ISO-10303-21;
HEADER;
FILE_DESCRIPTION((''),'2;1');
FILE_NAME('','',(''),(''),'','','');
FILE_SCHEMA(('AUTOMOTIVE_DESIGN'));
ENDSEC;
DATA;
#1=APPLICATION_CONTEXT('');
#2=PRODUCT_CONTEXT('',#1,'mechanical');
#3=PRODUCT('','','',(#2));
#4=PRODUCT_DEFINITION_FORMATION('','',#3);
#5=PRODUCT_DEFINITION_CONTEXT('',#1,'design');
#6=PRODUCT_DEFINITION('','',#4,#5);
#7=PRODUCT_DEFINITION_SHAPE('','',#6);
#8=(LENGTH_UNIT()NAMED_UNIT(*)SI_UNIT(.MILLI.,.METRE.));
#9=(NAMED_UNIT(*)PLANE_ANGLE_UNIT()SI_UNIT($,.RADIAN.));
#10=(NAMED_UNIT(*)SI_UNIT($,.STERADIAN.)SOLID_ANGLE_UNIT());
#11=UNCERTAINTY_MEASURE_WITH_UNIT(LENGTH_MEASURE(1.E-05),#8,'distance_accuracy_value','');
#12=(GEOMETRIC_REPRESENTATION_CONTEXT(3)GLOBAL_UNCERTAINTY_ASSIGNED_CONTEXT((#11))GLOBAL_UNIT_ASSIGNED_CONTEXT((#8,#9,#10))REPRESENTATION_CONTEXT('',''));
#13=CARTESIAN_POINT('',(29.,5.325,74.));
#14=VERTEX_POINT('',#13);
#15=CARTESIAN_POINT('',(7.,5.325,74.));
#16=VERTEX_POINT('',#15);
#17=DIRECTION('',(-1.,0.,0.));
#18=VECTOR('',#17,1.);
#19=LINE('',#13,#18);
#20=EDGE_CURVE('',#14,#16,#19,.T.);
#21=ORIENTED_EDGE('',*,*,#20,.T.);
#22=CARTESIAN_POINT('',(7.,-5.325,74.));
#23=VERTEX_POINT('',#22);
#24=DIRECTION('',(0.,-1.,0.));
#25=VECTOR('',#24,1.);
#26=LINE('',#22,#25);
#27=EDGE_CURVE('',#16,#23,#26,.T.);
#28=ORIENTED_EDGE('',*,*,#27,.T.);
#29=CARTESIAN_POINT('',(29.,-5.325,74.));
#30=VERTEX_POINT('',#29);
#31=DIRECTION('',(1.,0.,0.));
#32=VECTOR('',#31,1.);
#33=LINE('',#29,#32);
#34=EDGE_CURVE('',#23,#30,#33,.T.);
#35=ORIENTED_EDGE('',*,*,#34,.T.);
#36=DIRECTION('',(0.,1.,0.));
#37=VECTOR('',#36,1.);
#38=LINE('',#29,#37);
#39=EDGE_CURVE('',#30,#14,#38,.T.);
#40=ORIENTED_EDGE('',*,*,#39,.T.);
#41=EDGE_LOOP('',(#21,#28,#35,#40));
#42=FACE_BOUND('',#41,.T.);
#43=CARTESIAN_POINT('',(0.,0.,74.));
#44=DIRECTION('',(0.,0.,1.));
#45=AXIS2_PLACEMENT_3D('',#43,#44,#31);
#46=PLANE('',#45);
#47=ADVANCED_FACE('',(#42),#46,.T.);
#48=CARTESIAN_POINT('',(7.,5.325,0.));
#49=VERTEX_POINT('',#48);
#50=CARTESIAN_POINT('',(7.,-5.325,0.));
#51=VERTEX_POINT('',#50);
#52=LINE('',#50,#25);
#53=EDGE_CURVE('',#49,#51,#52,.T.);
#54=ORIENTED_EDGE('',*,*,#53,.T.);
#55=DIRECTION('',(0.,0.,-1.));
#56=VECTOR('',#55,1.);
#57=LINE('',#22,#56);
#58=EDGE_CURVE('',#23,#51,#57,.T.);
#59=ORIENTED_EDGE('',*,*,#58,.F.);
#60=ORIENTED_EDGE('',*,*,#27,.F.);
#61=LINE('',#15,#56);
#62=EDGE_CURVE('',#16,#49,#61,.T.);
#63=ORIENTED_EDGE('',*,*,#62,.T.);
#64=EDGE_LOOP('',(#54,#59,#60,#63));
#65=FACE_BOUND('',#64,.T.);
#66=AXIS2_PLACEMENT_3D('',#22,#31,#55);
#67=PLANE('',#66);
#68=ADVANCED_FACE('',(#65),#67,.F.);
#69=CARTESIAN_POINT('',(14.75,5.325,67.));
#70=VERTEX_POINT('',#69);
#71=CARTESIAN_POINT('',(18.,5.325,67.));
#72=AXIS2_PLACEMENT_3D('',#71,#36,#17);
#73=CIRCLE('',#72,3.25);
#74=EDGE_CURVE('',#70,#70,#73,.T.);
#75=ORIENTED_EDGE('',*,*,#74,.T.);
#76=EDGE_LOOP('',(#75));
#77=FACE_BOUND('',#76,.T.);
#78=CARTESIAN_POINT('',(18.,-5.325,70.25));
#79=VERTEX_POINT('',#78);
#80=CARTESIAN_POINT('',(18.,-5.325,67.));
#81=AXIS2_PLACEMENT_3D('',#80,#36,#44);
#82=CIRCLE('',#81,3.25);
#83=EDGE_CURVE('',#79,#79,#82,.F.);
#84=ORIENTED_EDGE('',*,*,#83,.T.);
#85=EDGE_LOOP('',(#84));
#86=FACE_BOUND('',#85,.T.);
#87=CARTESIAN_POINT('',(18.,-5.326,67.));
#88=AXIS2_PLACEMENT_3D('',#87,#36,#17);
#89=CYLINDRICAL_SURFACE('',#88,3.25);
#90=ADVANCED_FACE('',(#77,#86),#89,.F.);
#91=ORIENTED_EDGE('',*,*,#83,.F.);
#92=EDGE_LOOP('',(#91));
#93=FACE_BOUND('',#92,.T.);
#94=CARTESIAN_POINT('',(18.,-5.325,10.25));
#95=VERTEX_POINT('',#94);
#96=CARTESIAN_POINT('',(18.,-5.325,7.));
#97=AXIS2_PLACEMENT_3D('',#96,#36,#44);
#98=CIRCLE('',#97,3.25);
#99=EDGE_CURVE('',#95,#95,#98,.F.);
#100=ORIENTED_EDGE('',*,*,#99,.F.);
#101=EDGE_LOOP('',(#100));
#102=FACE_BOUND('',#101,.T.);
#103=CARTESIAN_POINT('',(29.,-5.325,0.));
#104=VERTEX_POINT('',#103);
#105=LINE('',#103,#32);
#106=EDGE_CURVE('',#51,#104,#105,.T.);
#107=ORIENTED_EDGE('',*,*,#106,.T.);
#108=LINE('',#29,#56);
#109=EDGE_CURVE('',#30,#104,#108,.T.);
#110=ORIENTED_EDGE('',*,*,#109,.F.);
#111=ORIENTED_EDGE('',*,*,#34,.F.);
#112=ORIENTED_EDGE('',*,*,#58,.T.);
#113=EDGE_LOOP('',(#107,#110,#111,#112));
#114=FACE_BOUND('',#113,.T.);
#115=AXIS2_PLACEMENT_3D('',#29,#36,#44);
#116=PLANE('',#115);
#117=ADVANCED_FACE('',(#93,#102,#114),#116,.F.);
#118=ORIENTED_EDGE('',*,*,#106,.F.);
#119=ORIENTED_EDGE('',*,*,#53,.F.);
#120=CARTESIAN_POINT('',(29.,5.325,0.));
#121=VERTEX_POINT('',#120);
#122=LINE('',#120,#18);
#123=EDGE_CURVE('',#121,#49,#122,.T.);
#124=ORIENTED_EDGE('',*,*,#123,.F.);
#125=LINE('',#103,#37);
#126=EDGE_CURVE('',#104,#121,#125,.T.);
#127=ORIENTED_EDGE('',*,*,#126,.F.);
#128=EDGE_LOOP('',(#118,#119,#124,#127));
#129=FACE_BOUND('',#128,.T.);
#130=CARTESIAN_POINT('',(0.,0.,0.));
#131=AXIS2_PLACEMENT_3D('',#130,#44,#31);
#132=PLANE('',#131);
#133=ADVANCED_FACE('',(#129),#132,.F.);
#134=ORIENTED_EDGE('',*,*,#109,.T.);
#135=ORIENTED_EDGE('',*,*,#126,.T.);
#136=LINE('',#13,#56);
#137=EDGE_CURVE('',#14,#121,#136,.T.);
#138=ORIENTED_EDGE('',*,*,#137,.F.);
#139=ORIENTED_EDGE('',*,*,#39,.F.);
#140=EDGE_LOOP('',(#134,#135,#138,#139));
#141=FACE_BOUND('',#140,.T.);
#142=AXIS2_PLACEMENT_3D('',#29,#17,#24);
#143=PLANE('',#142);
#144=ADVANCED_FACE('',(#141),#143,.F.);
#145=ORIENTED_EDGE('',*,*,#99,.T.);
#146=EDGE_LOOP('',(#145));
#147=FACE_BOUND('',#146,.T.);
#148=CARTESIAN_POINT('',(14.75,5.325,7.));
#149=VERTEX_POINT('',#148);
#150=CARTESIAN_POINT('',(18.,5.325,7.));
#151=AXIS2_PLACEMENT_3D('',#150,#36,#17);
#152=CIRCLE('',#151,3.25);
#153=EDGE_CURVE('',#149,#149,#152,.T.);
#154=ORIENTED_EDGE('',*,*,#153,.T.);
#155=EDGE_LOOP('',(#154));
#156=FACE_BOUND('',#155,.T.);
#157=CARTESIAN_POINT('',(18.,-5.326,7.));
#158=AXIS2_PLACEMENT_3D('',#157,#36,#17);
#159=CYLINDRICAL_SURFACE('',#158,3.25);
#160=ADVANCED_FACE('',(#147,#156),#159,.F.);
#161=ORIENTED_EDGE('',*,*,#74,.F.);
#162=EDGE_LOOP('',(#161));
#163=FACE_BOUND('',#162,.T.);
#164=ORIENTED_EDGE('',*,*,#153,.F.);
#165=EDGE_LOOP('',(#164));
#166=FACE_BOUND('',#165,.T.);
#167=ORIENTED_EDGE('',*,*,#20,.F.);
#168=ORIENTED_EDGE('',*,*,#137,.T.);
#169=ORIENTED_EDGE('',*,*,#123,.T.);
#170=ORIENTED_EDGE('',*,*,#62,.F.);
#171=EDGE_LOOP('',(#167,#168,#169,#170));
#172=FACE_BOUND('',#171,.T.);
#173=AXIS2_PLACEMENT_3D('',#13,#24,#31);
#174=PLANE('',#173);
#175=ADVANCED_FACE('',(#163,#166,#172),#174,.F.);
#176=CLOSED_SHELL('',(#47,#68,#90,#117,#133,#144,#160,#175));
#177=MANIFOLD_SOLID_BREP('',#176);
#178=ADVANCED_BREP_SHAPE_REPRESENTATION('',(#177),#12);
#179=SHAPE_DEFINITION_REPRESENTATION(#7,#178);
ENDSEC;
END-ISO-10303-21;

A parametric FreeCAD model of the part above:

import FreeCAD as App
import Part
import Sketcher

V = App.Vector
Q = App.Units.Quantity


def add_polygon(sketch, points):
    """Adds a closed chain of lines whose ends are joined by coincident constraints."""
    first, n = sketch.GeometryCount, len(points)
    for a, b in zip(points, points[1:] + points[:1]):
        sketch.addGeometry(Part.LineSegment(App.Vector(*a, 0), App.Vector(*b, 0)), False)
    for i in range(n):
        sketch.addConstraint(Sketcher.Constraint("Coincident", first + i, 2, first + (i + 1) % n, 1))

doc = App.newDocument("Part")
body = doc.addObject("PartDesign::Body", "Body")

# Sketch on XY plane
sketch1 = doc.addObject("Sketcher::SketchObject", "Sketch")
body.addObject(sketch1)
sketch1.AttachmentSupport = (doc.XY_Plane, [""])
sketch1.MapMode = "FlatFace"
add_polygon(sketch1, [(7, 5), (7, -5), (29, -5), (29, 5)])  # lines 0-3
sketch1.addConstraint([
    Sketcher.Constraint("Vertical", 0),
    Sketcher.Constraint("Horizontal", 1),
    Sketcher.Constraint("Vertical", 2),
    Sketcher.Constraint("Horizontal", 3),
    Sketcher.Constraint("DistanceX", 1, 1, 1, 2, Q("22 mm")),
    Sketcher.Constraint("DistanceX", -1, 1, 0, 2, Q("7 mm")),
    Sketcher.Constraint("DistanceY", 0, 2, 0, 1, Q("10.65 mm")),
    Sketcher.Constraint("DistanceY", 0, 2, -1, 1, Q("5.325 mm")),
])
pad1 = doc.addObject("PartDesign::Pad", "Pad")
body.addObject(pad1)
pad1.Profile = sketch1
pad1.Length = 74

# Sketch on XZ plane
sketch2 = doc.addObject("Sketcher::SketchObject", "Sketch001")
body.addObject(sketch2)
sketch2.AttachmentSupport = (doc.XZ_Plane, [""])
sketch2.MapMode = "FlatFace"
sketch2.AttachmentOffset = App.Placement(V(0, 0, -5.325), App.Rotation())
sketch2.addGeometry(Part.Circle(V(18, 7, 0), V(0, 0, 1), 3.2), False)
sketch2.addConstraint([
    Sketcher.Constraint("Diameter", 0, Q("6.5 mm")),
    Sketcher.Constraint("DistanceX", -1, 1, 0, 3, Q("18 mm")),
    Sketcher.Constraint("DistanceY", -1, 1, 0, 3, Q("7 mm")),
])
pocket1 = doc.addObject("PartDesign::Pocket", "Pocket")
body.addObject(pocket1)
pocket1.Profile = sketch2
pocket1.Type = "UpToFirst"
pocket1.Reversed = True

# Sketch on XZ plane
sketch3 = doc.addObject("Sketcher::SketchObject", "Sketch002")
body.addObject(sketch3)
sketch3.AttachmentSupport = (doc.XZ_Plane, [""])
sketch3.MapMode = "FlatFace"
sketch3.AttachmentOffset = App.Placement(V(0, 0, -5.325), App.Rotation())
sketch3.addGeometry(Part.Circle(V(18, 67, 0), V(0, 0, 1), 3.2), False)
sketch3.addConstraint([
    Sketcher.Constraint("Diameter", 0, Q("6.5 mm")),
    Sketcher.Constraint("DistanceX", -1, 1, 0, 3, Q("18 mm")),
    Sketcher.Constraint("DistanceY", -1, 1, 0, 3, Q("67 mm")),
])
pocket2 = doc.addObject("PartDesign::Pocket", "Pocket001")
body.addObject(pocket2)
pocket2.Profile = sketch3
pocket2.Type = "UpToFirst"
pocket2.Reversed = True

doc.recompute()
